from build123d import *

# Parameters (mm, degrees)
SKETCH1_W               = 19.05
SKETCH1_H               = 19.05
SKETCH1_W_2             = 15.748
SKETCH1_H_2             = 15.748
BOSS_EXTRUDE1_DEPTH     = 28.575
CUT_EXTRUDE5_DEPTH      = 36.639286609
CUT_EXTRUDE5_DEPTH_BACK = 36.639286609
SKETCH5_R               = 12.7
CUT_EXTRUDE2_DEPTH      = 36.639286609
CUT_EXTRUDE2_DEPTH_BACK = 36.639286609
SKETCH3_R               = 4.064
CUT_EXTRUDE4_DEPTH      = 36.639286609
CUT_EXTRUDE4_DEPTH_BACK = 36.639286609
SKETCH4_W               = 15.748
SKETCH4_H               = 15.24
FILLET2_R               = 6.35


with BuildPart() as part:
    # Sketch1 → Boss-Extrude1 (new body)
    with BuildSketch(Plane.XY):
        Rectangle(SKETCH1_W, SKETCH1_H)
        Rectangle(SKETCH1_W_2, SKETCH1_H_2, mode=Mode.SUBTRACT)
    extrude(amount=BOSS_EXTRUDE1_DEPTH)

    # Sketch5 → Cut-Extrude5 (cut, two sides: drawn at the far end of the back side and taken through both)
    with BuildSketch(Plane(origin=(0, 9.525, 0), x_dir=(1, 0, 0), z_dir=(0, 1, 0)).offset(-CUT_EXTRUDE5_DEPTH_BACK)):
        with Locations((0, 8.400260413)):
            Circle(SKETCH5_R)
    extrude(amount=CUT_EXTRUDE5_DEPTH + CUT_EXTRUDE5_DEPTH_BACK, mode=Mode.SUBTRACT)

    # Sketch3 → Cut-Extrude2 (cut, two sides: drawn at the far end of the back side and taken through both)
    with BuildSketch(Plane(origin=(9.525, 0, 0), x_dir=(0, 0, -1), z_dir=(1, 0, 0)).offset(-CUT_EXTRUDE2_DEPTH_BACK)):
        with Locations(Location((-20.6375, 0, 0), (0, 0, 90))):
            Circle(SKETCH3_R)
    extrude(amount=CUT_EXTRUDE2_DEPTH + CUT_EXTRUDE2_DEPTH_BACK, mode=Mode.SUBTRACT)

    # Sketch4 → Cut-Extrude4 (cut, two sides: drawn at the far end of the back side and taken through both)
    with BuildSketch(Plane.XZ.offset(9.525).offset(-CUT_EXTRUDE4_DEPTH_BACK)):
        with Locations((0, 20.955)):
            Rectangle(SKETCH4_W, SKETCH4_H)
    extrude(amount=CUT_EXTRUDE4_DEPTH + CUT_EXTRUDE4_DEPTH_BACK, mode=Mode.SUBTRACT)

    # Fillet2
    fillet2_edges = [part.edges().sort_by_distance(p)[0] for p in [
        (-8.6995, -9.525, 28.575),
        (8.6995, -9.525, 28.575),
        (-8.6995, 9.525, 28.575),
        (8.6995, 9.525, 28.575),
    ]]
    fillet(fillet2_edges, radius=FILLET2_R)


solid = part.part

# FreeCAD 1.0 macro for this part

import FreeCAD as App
import Part
import Sketcher
from FreeCAD import Vector
Q = App.Units.Quantity


def edges_at(feature, points):
    """Names of the edges that pass closest to the given points."""
    edges = feature.Shape.Edges
    near = lambda p: min(range(len(edges)), key=lambda i: edges[i].distToShape(Part.Vertex(*p))[0])
    return sorted({f"Edge{near(p) + 1}" for p in points})

doc = App.newDocument("Part")
body = doc.addObject("PartDesign::Body", "Body")

# Sketch on XY plane
sketch1 = body.newObject("Sketcher::SketchObject", "Sketch")
sketch1.AttachmentSupport = (doc.getObject("XY_Plane"), [""])
sketch1.MapMode = "FlatFace"
sketch1.addGeometry([
    Part.LineSegment(Vector(-9.525, 9.525, 0), Vector(-9.525, -9.525, 0)),  # 0
    Part.LineSegment(Vector(-9.525, -9.525, 0), Vector(9.525, -9.525, 0)),  # 1
    Part.LineSegment(Vector(9.525, -9.525, 0), Vector(9.525, 9.525, 0)),  # 2
    Part.LineSegment(Vector(9.525, 9.525, 0), Vector(-9.525, 9.525, 0)),  # 3
    Part.LineSegment(Vector(7.874, -7.874, 0), Vector(-7.874, -7.874, 0)),  # 4
    Part.LineSegment(Vector(-7.874, -7.874, 0), Vector(-7.874, 7.874, 0)),  # 5
    Part.LineSegment(Vector(-7.874, 7.874, 0), Vector(7.874, 7.874, 0)),  # 6
    Part.LineSegment(Vector(7.874, 7.874, 0), Vector(7.874, -7.874, 0)),  # 7
], False)
sketch1.addConstraint([
    Sketcher.Constraint("Coincident", 0, 2, 1, 1),
    Sketcher.Constraint("Coincident", 1, 2, 2, 1),
    Sketcher.Constraint("Coincident", 2, 2, 3, 1),
    Sketcher.Constraint("Coincident", 3, 2, 0, 1),
    Sketcher.Constraint("Coincident", 4, 2, 5, 1),
    Sketcher.Constraint("Coincident", 5, 2, 6, 1),
    Sketcher.Constraint("Coincident", 6, 2, 7, 1),
    Sketcher.Constraint("Coincident", 7, 2, 4, 1),
    Sketcher.Constraint("Vertical", 0),
    Sketcher.Constraint("Horizontal", 1),
    Sketcher.Constraint("Vertical", 2),
    Sketcher.Constraint("Horizontal", 3),
    Sketcher.Constraint("Horizontal", 4),
    Sketcher.Constraint("Vertical", 5),
    Sketcher.Constraint("Horizontal", 6),
    Sketcher.Constraint("Vertical", 7),
    Sketcher.Constraint("Symmetric", 0, 2, 2, 2, -1, 1),
    Sketcher.Constraint("Symmetric", 4, 2, 6, 2, -1, 1),
    Sketcher.Constraint("Equal", 3, 0),
    Sketcher.Constraint("Equal", 6, 5),
    Sketcher.Constraint("DistanceX", 1, 1, 1, 2, Q("0.75 in")),
    Sketcher.Constraint("DistanceX", 4, 2, 4, 1, Q("0.62 in")),
])
pad1 = body.newObject("PartDesign::Pad", "Pad")
pad1.Profile = sketch1
pad1.Length = Q("1.125 in")

# Sketch on XZ plane
sketch2 = body.newObject("Sketcher::SketchObject", "Sketch001")
sketch2.AttachmentSupport = (doc.getObject("XZ_Plane"), [""])
sketch2.MapMode = "FlatFace"
sketch2.AttachmentOffset = App.Placement(Vector(0, 0, -0.375 * 25.4), App.Rotation())
sketch2.addGeometry(Part.Circle(Vector(0, -8.40026, 0), Vector(0, 0, 1), 12.7), False)
sketch2.addConstraint([
    Sketcher.Constraint("PointOnObject", 0, 3, -2),
    Sketcher.Constraint("Diameter", 0, Q("1 in")),
    Sketcher.Constraint("DistanceY", 0, 3, -1, 1, 8.40026),
])
pocket1 = body.newObject("PartDesign::Pocket", "Pocket")
pocket1.Profile = sketch2
pocket1.Type = "ThroughAll"
pocket1.Midplane = True

# Sketch on YZ plane
sketch3 = body.newObject("Sketcher::SketchObject", "Sketch002")
sketch3.AttachmentSupport = (doc.getObject("YZ_Plane"), [""])
sketch3.MapMode = "FlatFace"
sketch3.AttachmentOffset = App.Placement(Vector(0, 0, 0.375 * 25.4), App.Rotation())
sketch3.addGeometry(Part.Circle(Vector(0, 20.6375, 0), Vector(0, 0, 1), 4.064), False)
sketch3.addConstraint([
    Sketcher.Constraint("PointOnObject", 0, 3, -2),
    Sketcher.Constraint("Diameter", 0, Q("0.32 in")),
    Sketcher.Constraint("DistanceY", -1, 1, 0, 3, Q("0.8125 in")),
])
pocket2 = body.newObject("PartDesign::Pocket", "Pocket001")
pocket2.Profile = sketch3
pocket2.Type = "ThroughAll"
pocket2.Midplane = True

# Sketch on XZ plane
sketch4 = body.newObject("Sketcher::SketchObject", "Sketch003")
sketch4.AttachmentSupport = (doc.getObject("XZ_Plane"), [""])
sketch4.MapMode = "FlatFace"
sketch4.AttachmentOffset = App.Placement(Vector(0, 0, 0.375 * 25.4), App.Rotation())
sketch4.addGeometry([
    Part.LineSegment(Vector(-7.874, 28.575, 0), Vector(-7.874, 13.335, 0)),
    Part.LineSegment(Vector(-7.874, 13.335, 0), Vector(7.874, 13.335, 0)),
    Part.LineSegment(Vector(7.874, 13.335, 0), Vector(7.874, 28.575, 0)),
    Part.LineSegment(Vector(7.874, 28.575, 0), Vector(-7.874, 28.575, 0)),
], False)
sketch4.addConstraint([
    Sketcher.Constraint("Coincident", 0, 2, 1, 1),
    Sketcher.Constraint("Coincident", 1, 2, 2, 1),
    Sketcher.Constraint("Coincident", 2, 2, 3, 1),
    Sketcher.Constraint("Coincident", 3, 2, 0, 1),
    Sketcher.Constraint("Vertical", 0),
    Sketcher.Constraint("Horizontal", 1),
    Sketcher.Constraint("Vertical", 2),
    Sketcher.Constraint("Horizontal", 3),
    Sketcher.Constraint("DistanceY", 0, 2, 0, 1, Q("0.6 in")),
    Sketcher.Constraint("DistanceX", 1, 1, 1, 2, Q("0.62 in")),
    Sketcher.Constraint("DistanceX", 0, 2, -1, 1, Q("0.31 in")),
    Sketcher.Constraint("DistanceY", -1, 1, 0, 2, Q("0.525 in")),
])
pocket3 = body.newObject("PartDesign::Pocket", "Pocket002")
pocket3.Profile = sketch4
pocket3.Type = "ThroughAll"
pocket3.Midplane = True
doc.recompute()

fillet = body.newObject("PartDesign::Fillet", "Fillet")
fillet.Base = (pocket3, edges_at(pocket3, [
    (-8.7, -9.525, 28.575),
    (8.7, -9.525, 28.575),
    (-8.7, 9.525, 28.575),
    (8.7, 9.525, 28.575),
]))
fillet.Radius = Q("0.25 in")

doc.recompute()
